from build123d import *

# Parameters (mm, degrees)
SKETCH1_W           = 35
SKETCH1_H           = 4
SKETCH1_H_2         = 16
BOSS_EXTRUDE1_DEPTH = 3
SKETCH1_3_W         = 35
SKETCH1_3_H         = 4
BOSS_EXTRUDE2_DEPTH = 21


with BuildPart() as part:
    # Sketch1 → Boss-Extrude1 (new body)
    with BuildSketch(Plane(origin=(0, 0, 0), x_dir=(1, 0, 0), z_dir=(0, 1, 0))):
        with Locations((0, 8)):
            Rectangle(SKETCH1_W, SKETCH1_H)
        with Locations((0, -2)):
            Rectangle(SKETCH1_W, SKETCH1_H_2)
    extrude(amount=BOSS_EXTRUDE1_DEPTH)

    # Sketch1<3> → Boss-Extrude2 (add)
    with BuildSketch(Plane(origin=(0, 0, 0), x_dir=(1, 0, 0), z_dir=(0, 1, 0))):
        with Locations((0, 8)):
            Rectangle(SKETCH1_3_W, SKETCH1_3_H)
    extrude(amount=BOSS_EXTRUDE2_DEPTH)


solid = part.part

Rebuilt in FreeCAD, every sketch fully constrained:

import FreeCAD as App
import Part
import Sketcher
from FreeCAD import Vector
Q = App.Units.Quantity

doc = App.newDocument("Part")
body = doc.addObject("PartDesign::Body", "Body")

# Sketch on XZ plane
sketch1 = body.newObject("Sketcher::SketchObject", "Sketch")
sketch1.AttachmentSupport = (doc.getObject("XZ_Plane"), [""])
sketch1.MapMode = "FlatFace"
sketch1.addGeometry([
    Part.LineSegment(Vector(-18, -10, 0), Vector(-18, 10, 0)),
    Part.LineSegment(Vector(-18, 10, 0), Vector(18, 10, 0)),
    Part.LineSegment(Vector(18, 10, 0), Vector(18, -10, 0)),
    Part.LineSegment(Vector(18, -10, 0), Vector(-18, -10, 0)),
], False)
sketch1.addConstraint([
    Sketcher.Constraint("Coincident", 0, 2, 1, 1),
    Sketcher.Constraint("Coincident", 1, 2, 2, 1),
    Sketcher.Constraint("Coincident", 2, 2, 3, 1),
    Sketcher.Constraint("Coincident", 3, 2, 0, 1),
    Sketcher.Constraint("Vertical", 0),
    Sketcher.Constraint("Horizontal", 1),
    Sketcher.Constraint("Vertical", 2),
    Sketcher.Constraint("Horizontal", 3),
    Sketcher.Constraint("Symmetric", 0, 2, 2, 2, -1, 1),
    Sketcher.Constraint("DistanceX", 1, 1, 1, 2, Q("35 mm")),
    Sketcher.Constraint("DistanceY", 0, 1, 0, 2, Q("20 mm")),
])
pad1 = body.newObject("PartDesign::Pad", "Pad")
pad1.Profile = sketch1
pad1.Length = 3
pad1.Reversed = True

# Sketch on XZ plane
sketch2 = body.newObject("Sketcher::SketchObject", "Sketch001")
sketch2.AttachmentSupport = (doc.getObject("XZ_Plane"), [""])
sketch2.MapMode = "FlatFace"
sketch2.addGeometry([
    Part.LineSegment(Vector(-17.5, -10, 0), Vector(-17.5, -6, 0)),
    Part.LineSegment(Vector(-17.5, -6, 0), Vector(17.5, -6, 0)),
    Part.LineSegment(Vector(17.5, -6, 0), Vector(17.5, -10, 0)),
    Part.LineSegment(Vector(17.5, -10, 0), Vector(-17.5, -10, 0)),
], False)
sketch2.addConstraint([
    Sketcher.Constraint("Coincident", 0, 2, 1, 1),
    Sketcher.Constraint("Coincident", 1, 2, 2, 1),
    Sketcher.Constraint("Coincident", 2, 2, 3, 1),
    Sketcher.Constraint("Coincident", 3, 2, 0, 1),
    Sketcher.Constraint("Vertical", 0),
    Sketcher.Constraint("Horizontal", 1),
    Sketcher.Constraint("Vertical", 2),
    Sketcher.Constraint("Horizontal", 3),
    Sketcher.Constraint("DistanceX", 1, 1, 1, 2, Q("35 mm")),
    Sketcher.Constraint("DistanceY", 0, 1, 0, 2, Q("4 mm")),
    Sketcher.Constraint("DistanceY", 0, 2, -1, 1, Q("6 mm")),
    Sketcher.Constraint("DistanceX", 0, 2, -1, 1, Q("17.5 mm")),
])
pad2 = body.newObject("PartDesign::Pad", "Pad001")
pad2.Profile = sketch2
pad2.Length = 21
pad2.Reversed = True

doc.recompute()
